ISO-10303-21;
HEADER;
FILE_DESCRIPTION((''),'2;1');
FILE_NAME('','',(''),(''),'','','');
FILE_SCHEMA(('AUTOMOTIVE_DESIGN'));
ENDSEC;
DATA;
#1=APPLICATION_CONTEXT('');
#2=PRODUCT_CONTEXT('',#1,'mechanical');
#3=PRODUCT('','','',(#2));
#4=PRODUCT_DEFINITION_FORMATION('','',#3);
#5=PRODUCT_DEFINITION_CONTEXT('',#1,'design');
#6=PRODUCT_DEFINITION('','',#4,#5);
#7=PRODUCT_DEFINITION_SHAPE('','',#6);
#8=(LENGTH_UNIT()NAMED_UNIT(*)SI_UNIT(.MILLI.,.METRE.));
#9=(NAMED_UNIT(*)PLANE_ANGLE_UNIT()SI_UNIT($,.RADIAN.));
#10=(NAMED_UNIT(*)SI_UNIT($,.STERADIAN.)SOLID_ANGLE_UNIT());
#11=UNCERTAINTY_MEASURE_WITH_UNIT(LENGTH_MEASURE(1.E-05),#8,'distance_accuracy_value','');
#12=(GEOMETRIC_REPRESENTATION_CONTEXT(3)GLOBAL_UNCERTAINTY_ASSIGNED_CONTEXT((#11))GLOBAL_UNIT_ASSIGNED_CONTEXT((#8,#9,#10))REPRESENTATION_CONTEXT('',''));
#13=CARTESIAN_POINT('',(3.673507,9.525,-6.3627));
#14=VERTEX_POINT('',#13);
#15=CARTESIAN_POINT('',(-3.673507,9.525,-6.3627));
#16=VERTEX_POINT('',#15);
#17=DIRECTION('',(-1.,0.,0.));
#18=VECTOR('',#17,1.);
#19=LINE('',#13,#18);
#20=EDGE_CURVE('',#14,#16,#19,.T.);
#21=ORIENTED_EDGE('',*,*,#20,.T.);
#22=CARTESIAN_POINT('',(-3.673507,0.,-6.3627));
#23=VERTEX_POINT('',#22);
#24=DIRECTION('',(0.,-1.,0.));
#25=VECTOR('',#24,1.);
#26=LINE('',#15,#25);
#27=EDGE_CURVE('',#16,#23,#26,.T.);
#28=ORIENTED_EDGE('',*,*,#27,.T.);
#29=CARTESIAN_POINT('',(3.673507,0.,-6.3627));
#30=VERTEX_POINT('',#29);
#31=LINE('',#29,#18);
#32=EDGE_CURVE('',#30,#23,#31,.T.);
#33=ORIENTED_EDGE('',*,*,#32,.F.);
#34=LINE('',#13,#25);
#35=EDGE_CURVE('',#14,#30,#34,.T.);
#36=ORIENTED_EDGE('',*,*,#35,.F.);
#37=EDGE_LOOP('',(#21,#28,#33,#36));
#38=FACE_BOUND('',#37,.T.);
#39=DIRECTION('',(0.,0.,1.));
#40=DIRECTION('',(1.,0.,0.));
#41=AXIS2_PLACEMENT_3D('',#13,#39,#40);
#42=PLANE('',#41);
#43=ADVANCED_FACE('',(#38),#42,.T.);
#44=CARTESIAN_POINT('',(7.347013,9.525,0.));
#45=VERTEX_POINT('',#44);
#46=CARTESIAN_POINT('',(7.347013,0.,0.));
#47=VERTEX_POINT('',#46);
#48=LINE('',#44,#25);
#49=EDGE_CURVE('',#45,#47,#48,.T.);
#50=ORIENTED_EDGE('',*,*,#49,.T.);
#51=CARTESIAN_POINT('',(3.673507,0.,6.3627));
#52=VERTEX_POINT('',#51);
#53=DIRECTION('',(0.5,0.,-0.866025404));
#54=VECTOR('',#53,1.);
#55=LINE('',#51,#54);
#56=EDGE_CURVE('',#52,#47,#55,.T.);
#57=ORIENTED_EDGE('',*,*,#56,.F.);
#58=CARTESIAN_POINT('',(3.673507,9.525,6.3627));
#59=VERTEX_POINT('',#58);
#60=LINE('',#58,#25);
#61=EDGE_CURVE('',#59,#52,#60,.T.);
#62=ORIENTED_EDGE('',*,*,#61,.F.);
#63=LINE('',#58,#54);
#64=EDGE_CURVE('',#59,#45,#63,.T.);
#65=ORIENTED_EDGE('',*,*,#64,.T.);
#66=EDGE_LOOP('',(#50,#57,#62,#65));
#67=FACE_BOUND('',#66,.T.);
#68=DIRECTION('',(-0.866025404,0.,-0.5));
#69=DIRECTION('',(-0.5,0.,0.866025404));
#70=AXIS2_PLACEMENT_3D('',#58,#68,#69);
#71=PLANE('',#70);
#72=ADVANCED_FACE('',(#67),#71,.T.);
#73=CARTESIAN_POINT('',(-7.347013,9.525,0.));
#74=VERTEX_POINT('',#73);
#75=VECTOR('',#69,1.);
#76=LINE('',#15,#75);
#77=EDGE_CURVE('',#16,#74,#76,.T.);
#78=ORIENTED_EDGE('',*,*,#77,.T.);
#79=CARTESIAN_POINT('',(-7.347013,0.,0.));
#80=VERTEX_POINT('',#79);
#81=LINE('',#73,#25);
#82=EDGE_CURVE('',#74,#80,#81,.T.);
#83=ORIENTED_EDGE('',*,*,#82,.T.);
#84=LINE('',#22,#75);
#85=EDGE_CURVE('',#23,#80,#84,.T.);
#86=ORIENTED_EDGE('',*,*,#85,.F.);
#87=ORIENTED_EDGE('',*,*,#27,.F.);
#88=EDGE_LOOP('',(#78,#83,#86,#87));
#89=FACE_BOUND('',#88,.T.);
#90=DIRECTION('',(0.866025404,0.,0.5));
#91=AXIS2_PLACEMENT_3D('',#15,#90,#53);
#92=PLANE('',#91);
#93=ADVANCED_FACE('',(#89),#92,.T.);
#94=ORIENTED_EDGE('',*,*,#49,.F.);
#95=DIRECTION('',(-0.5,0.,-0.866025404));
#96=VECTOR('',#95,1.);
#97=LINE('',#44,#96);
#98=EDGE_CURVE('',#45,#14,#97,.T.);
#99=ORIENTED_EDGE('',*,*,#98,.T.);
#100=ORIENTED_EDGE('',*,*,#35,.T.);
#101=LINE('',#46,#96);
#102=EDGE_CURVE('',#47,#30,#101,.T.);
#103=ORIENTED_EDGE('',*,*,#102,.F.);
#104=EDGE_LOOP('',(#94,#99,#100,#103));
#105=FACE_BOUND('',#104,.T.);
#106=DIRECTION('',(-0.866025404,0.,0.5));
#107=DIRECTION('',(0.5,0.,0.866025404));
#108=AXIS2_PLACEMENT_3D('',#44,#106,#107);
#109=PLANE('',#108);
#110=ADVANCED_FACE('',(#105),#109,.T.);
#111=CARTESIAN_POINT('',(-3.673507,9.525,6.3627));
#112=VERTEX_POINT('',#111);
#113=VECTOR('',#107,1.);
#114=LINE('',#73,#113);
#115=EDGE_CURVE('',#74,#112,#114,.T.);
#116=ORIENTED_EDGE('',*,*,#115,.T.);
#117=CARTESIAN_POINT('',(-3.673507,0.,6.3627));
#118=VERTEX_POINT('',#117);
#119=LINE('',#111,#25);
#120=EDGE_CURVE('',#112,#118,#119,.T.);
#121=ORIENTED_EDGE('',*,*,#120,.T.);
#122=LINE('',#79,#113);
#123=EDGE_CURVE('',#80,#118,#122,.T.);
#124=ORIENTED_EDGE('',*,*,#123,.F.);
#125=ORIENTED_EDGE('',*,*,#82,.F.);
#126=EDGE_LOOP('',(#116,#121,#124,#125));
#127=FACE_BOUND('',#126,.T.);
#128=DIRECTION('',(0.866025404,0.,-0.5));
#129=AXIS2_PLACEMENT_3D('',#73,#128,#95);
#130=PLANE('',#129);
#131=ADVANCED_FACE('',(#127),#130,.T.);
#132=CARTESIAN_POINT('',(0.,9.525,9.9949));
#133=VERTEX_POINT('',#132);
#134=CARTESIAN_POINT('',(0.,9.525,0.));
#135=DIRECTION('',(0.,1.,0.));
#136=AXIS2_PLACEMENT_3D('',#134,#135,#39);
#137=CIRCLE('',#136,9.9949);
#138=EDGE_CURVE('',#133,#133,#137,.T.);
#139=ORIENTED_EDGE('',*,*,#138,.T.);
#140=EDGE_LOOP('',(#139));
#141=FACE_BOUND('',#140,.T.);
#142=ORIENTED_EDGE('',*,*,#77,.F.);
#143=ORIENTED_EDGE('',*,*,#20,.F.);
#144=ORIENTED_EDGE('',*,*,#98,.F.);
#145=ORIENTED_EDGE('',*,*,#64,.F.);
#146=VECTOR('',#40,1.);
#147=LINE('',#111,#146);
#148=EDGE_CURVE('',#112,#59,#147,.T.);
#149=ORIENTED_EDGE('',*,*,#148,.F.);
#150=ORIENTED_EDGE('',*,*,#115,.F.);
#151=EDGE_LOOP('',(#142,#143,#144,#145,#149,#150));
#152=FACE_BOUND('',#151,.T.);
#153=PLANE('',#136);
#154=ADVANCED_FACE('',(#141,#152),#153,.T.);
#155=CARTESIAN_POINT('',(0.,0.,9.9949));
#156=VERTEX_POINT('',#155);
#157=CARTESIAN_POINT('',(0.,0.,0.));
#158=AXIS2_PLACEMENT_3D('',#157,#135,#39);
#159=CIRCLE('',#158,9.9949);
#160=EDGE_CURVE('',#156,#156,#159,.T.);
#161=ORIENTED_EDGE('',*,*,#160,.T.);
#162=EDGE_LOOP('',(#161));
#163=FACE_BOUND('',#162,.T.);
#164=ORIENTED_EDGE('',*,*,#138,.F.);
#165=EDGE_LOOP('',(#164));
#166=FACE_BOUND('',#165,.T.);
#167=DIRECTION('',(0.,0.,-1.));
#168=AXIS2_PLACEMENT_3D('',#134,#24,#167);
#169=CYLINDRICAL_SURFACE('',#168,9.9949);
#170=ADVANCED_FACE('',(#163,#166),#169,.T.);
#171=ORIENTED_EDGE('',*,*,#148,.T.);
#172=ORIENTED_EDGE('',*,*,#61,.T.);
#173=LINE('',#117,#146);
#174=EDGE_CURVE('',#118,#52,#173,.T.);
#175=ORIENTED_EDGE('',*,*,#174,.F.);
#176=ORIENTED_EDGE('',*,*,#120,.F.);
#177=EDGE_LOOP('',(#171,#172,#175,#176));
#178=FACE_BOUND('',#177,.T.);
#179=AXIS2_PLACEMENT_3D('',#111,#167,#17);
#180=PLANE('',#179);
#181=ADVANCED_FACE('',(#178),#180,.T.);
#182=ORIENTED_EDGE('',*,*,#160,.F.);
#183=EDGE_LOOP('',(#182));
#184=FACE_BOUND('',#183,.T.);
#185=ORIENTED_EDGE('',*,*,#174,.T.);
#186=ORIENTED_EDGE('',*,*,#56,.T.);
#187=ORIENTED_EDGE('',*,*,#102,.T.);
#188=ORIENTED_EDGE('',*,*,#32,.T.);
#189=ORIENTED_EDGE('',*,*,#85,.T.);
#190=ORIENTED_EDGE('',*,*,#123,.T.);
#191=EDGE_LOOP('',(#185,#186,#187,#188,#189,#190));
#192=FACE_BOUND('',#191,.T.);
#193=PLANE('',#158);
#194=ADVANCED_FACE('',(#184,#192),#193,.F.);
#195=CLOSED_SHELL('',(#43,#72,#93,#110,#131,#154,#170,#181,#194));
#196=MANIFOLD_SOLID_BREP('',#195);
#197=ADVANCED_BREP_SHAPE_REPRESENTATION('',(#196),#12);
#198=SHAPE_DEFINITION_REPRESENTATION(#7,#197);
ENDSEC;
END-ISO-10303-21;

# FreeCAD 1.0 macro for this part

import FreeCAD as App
import Part
import Sketcher
Q = App.Units.Quantity


def add_polygon(sketch, points):
    """Adds a closed chain of lines whose ends are joined by coincident constraints."""
    first, n = sketch.GeometryCount, len(points)
    for a, b in zip(points, points[1:] + points[:1]):
        sketch.addGeometry(Part.LineSegment(App.Vector(*a, 0), App.Vector(*b, 0)), False)
    for i in range(n):
        sketch.addConstraint(Sketcher.Constraint("Coincident", first + i, 2, first + (i + 1) % n, 1))

doc = App.newDocument("Part")
params = doc.addObject("Spreadsheet::Sheet", "Params")
for row, (alias, value) in enumerate([
    ("sketch1_diameter", "0.787 in"),
    ("pad1_length", "0.375 in"),
], start=1):
    params.set(f"A{row}", alias)
    params.set(f"B{row}", "=" + value)
    params.setAlias(f"B{row}", alias)

body = doc.addObject("PartDesign::Body", "Body")

# Sketch on XZ plane
sketch1 = body.newObject("Sketcher::SketchObject", "Sketch")
sketch1.AttachmentSupport = (doc.getObject("XZ_Plane"), [""])
sketch1.MapMode = "FlatFace"
sketch1.addGeometry(Part.Circle(App.Vector(0, 0, 0), App.Vector(0, 0, 1), 9.9949), False)  # 0
add_polygon(sketch1, [(3.673507, -6.3627), (7.347013, 0), (3.673507, 6.3627), (-3.673507, 6.3627), (-7.347013, 0), (-3.673507, -6.3627)])  # lines 1-6
sketch1.addConstraint([
    Sketcher.Constraint("Horizontal", 3),
    Sketcher.Constraint("Horizontal", 6),
    Sketcher.Constraint("Coincident", 0, 3, -1, 1),
    Sketcher.Constraint("Symmetric", 1, 2, 4, 2, -1, 1),
    Sketcher.Constraint("Symmetric", 2, 2, 5, 2, -1, 1),
    Sketcher.Constraint("PointOnObject", 1, 2, -1),
    Sketcher.Constraint("Parallel", 1, 4),
    Sketcher.Constraint("Vertical", 3, 2, 5, 2),
    Sketcher.Constraint("Diameter", 0, Q("0.787 in")),
    Sketcher.Constraint("Angle", 1, Q("60 deg")),
    Sketcher.Constraint("DistanceY", 5, 2, 3, 2, Q("0.501 in")),
    Sketcher.Constraint("DistanceX", 3, 2, 3, 1, Q("7.347013 mm")),
])
sketch1.setExpression("Constraints[14]", "Params.sketch1_diameter")
pad1 = body.newObject("PartDesign::Pad", "Pad")
pad1.Profile = sketch1
pad1.setExpression("Length", "Params.pad1_length")
pad1.Reversed = True

doc.recompute()
